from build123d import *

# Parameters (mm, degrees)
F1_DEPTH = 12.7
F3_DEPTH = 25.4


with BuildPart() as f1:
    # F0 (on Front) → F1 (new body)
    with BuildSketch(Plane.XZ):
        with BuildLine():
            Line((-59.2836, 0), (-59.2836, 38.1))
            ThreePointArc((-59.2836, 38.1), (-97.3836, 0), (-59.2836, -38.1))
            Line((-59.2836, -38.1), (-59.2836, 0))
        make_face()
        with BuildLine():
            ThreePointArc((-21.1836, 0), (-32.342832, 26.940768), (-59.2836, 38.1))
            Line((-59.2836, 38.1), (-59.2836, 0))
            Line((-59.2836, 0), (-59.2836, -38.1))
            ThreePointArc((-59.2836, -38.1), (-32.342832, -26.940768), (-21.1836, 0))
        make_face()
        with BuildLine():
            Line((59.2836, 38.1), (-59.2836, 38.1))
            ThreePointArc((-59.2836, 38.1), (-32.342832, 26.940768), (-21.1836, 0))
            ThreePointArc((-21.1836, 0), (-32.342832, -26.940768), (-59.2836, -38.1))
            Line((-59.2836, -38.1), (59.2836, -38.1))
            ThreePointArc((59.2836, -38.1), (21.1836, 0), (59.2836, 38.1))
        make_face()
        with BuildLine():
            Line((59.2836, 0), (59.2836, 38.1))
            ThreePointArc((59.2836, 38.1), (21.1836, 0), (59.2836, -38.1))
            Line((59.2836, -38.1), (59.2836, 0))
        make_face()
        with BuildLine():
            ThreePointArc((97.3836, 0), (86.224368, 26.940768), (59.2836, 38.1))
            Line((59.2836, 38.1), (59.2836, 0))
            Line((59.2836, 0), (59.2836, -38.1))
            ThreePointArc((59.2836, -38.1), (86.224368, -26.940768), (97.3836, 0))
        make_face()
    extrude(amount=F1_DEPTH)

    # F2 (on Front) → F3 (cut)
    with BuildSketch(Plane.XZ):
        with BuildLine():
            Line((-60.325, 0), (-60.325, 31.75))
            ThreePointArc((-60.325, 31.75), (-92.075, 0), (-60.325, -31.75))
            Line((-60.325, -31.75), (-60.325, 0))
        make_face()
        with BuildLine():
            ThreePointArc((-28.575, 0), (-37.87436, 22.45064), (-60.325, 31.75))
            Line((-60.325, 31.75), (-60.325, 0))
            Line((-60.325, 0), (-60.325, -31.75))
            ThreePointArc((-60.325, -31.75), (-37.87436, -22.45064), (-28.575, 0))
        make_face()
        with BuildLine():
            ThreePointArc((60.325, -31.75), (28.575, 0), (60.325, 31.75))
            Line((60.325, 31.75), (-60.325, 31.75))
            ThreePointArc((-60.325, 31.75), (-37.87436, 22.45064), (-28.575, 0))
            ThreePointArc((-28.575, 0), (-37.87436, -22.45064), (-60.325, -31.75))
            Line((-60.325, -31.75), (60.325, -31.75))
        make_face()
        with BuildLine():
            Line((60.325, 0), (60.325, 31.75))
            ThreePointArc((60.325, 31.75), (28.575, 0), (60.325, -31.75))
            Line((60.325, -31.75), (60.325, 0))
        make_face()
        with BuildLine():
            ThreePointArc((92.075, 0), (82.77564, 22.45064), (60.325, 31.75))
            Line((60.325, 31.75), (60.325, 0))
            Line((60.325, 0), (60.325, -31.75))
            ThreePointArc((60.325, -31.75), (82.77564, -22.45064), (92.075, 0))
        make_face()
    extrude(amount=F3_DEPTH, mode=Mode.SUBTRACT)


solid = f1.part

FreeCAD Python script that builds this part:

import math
import FreeCAD as App
import Part
import Sketcher

V = App.Vector
Q = App.Units.Quantity

doc = App.newDocument("Part")
body = doc.addObject("PartDesign::Body", "Body")

# Sketch on XZ plane
sketch1 = body.newObject("Sketcher::SketchObject", "Sketch")
sketch1.AttachmentSupport = (doc.getObject("XZ_Plane"), [""])
sketch1.MapMode = "FlatFace"
sketch1.addGeometry([
    Part.ArcOfCircle(Part.Circle(V(-59, 0, 0), V(0, 0, 1), 38), math.radians(90), math.radians(270)),  # 0
    Part.LineSegment(V(-59, -38, 0), V(59, -38, 0)),  # 1
    Part.ArcOfCircle(Part.Circle(V(59, 0, 0), V(0, 0, 1), 38), math.radians(-90), math.radians(0)),  # 2
    Part.ArcOfCircle(Part.Circle(V(59, 0, 0), V(0, 0, 1), 38), math.radians(0), math.radians(90)),  # 3
    Part.LineSegment(V(59, 38, 0), V(-59, 38, 0)),  # 4
], False)
sketch1.addConstraint([
    Sketcher.Constraint("Tangent", 0, 2, 1, 1),
    Sketcher.Constraint("Tangent", 1, 2, 2, 1),
    Sketcher.Constraint("Tangent", 2, 2, 3, 1),
    Sketcher.Constraint("Tangent", 3, 2, 4, 1),
    Sketcher.Constraint("Tangent", 4, 2, 0, 1),
    Sketcher.Constraint("Horizontal", 1),
    Sketcher.Constraint("Horizontal", 4),
    Sketcher.Constraint("Equal", 0, 2),
    Sketcher.Constraint("Symmetric", 0, 3, 2, 3, -1, 1),
    Sketcher.Constraint("PointOnObject", 2, 2, -1),
    Sketcher.Constraint("Radius", 0, Q("1.5 in")),
    Sketcher.Constraint("DistanceX", 1, 1, 1, 2, Q("4.668 in")),
])
pad1 = body.newObject("PartDesign::Pad", "Pad")
pad1.Profile = sketch1
pad1.Length = Q("0.5 in")

# Sketch on XZ plane
sketch2 = body.newObject("Sketcher::SketchObject", "Sketch001")
sketch2.AttachmentSupport = (doc.getObject("XZ_Plane"), [""])
sketch2.MapMode = "FlatFace"
sketch2.addGeometry([
    Part.ArcOfCircle(Part.Circle(V(-60, 0, 0), V(0, 0, 1), 32), math.radians(90), math.radians(270)),  # 0
    Part.LineSegment(V(-60, -32, 0), V(60, -32, 0)),  # 1
    Part.ArcOfCircle(Part.Circle(V(60, 0, 0), V(0, 0, 1), 32), math.radians(-90), math.radians(0)),  # 2
    Part.ArcOfCircle(Part.Circle(V(60, 0, 0), V(0, 0, 1), 32), math.radians(0), math.radians(90)),  # 3
    Part.LineSegment(V(60, 32, 0), V(-60, 32, 0)),  # 4
], False)
sketch2.addConstraint([
    Sketcher.Constraint("Tangent", 0, 2, 1, 1),
    Sketcher.Constraint("Tangent", 1, 2, 2, 1),
    Sketcher.Constraint("Tangent", 2, 2, 3, 1),
    Sketcher.Constraint("Tangent", 3, 2, 4, 1),
    Sketcher.Constraint("Tangent", 4, 2, 0, 1),
    Sketcher.Constraint("Horizontal", 1),
    Sketcher.Constraint("Horizontal", 4),
    Sketcher.Constraint("Equal", 0, 2),
    Sketcher.Constraint("Symmetric", 0, 3, 2, 3, -1, 1),
    Sketcher.Constraint("PointOnObject", 2, 2, -1),
    Sketcher.Constraint("Radius", 0, Q("1.25 in")),
    Sketcher.Constraint("DistanceX", 0, 3, 2, 2, Q("6 in")),
])
pocket1 = body.newObject("PartDesign::Pocket", "Pocket")
pocket1.Profile = sketch2
pocket1.Length = Q("1 in")
pocket1.Reversed = True

doc.recompute()
